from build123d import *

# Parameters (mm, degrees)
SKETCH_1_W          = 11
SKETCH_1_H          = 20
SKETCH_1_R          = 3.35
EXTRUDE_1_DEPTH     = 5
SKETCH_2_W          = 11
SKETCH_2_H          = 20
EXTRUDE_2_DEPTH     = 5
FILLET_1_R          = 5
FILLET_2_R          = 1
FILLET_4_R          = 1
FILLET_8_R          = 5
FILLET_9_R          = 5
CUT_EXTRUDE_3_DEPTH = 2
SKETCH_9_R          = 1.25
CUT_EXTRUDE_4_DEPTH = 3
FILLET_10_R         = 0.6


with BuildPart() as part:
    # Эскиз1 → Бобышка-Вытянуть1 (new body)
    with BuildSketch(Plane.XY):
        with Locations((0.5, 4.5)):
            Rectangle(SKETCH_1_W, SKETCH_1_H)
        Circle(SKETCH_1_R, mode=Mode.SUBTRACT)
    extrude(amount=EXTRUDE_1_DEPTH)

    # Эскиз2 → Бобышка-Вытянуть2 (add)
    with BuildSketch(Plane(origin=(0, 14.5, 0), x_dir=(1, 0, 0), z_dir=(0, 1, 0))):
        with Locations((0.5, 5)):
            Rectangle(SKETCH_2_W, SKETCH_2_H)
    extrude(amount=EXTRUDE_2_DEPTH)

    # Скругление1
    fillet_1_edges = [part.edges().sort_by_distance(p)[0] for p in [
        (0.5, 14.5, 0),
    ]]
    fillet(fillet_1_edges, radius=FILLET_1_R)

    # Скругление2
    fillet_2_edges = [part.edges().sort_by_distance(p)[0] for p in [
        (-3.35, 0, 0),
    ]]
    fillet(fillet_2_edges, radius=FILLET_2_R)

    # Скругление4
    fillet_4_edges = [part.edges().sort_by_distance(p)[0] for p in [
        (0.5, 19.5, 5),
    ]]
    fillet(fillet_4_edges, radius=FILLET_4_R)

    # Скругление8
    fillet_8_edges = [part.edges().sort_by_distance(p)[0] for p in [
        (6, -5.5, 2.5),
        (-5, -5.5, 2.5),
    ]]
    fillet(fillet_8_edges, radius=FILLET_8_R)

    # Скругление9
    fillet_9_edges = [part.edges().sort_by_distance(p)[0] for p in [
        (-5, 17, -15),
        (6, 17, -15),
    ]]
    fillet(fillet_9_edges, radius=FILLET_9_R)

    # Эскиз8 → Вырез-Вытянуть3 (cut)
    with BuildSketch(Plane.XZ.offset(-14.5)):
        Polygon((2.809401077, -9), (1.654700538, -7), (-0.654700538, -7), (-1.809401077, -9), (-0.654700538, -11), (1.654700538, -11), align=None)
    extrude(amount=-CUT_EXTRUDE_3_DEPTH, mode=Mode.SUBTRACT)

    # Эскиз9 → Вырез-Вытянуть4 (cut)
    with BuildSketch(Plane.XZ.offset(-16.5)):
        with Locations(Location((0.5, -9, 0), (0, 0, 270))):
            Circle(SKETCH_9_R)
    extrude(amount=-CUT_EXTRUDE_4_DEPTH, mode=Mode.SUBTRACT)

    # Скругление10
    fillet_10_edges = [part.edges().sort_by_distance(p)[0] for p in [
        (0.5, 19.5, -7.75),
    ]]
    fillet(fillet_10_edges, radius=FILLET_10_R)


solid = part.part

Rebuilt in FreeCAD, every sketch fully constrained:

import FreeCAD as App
import Part
import Sketcher
Q = App.Units.Quantity


def edges_at(feature, points):
    """Names of the edges that pass closest to the given points."""
    edges = feature.Shape.Edges
    near = lambda p: min(range(len(edges)), key=lambda i: edges[i].distToShape(Part.Vertex(*p))[0])
    return sorted({f"Edge{near(p) + 1}" for p in points})


def add_polygon(sketch, points):
    """Adds a closed chain of lines whose ends are joined by coincident constraints."""
    first, n = sketch.GeometryCount, len(points)
    for a, b in zip(points, points[1:] + points[:1]):
        sketch.addGeometry(Part.LineSegment(App.Vector(*a, 0), App.Vector(*b, 0)), False)
    for i in range(n):
        sketch.addConstraint(Sketcher.Constraint("Coincident", first + i, 2, first + (i + 1) % n, 1))

doc = App.newDocument("Part")
body = doc.addObject("PartDesign::Body", "Body")

# Sketch on XY plane
sketch1 = doc.addObject("Sketcher::SketchObject", "Sketch")
body.addObject(sketch1)
sketch1.AttachmentSupport = (doc.XY_Plane, [""])
sketch1.MapMode = "FlatFace"
add_polygon(sketch1, [(-5, 14.5), (-5, -5.5), (6, -5.5), (6, 14.5)])  # lines 0-3
sketch1.addGeometry(Part.Circle(App.Vector(0, 0, 0), App.Vector(0, 0, 1), 3.35), False)  # 4
sketch1.addConstraint([
    Sketcher.Constraint("Vertical", 0),
    Sketcher.Constraint("Horizontal", 1),
    Sketcher.Constraint("Vertical", 2),
    Sketcher.Constraint("Horizontal", 3),
    Sketcher.Constraint("Coincident", 4, 3, -1, 1),
    Sketcher.Constraint("Diameter", 4, 6.7),
    Sketcher.Constraint("DistanceX", 1, 1, 1, 2, 11.0),
    Sketcher.Constraint("DistanceY", 0, 2, 0, 1, 20.0),
    Sketcher.Constraint("DistanceX", 0, 2, -1, 1, 5.0),
    Sketcher.Constraint("DistanceY", 0, 2, -1, 1, 5.5),
])
pad1 = doc.addObject("PartDesign::Pad", "Pad")
body.addObject(pad1)
pad1.Profile = sketch1
pad1.Length = 5

# Sketch on XZ plane
sketch2 = doc.addObject("Sketcher::SketchObject", "Sketch001")
body.addObject(sketch2)
sketch2.AttachmentSupport = (doc.XZ_Plane, [""])
sketch2.MapMode = "FlatFace"
sketch2.AttachmentOffset = App.Placement(App.Vector(0, 0, -14.5), App.Rotation())
add_polygon(sketch2, [(-5, -15), (-5, 5), (6, 5), (6, -15)])  # lines 0-3
sketch2.addConstraint([
    Sketcher.Constraint("Vertical", 0),
    Sketcher.Constraint("Horizontal", 1),
    Sketcher.Constraint("Vertical", 2),
    Sketcher.Constraint("Horizontal", 3),
    Sketcher.Constraint("DistanceX", 1, 1, 1, 2, 11.0),
    Sketcher.Constraint("DistanceY", 0, 1, 0, 2, 20.0),
    Sketcher.Constraint("DistanceX", 0, 2, -1, 1, 5.0),
    Sketcher.Constraint("DistanceY", -1, 1, 0, 2, 5.0),
])
pad2 = doc.addObject("PartDesign::Pad", "Pad001")
body.addObject(pad2)
pad2.Profile = sketch2
pad2.Length = 5
pad2.Reversed = True
doc.recompute()

fillet = doc.addObject("PartDesign::Fillet", "Fillet")
body.addObject(fillet)
fillet.Base = (pad2, edges_at(pad2, [(0.5, 14.5, 0)]))
fillet.Radius = 5
doc.recompute()

fillet2 = doc.addObject("PartDesign::Fillet", "Fillet001")
body.addObject(fillet2)
fillet2.Base = (fillet, edges_at(fillet, [(-3.35, 0, 0)]))
fillet2.Radius = 1
doc.recompute()

fillet3 = doc.addObject("PartDesign::Fillet", "Fillet002")
body.addObject(fillet3)
fillet3.Base = (fillet2, edges_at(fillet2, [(0.5, 19.5, 5)]))
fillet3.Radius = 1
doc.recompute()

fillet4 = doc.addObject("PartDesign::Fillet", "Fillet003")
body.addObject(fillet4)
fillet4.Base = (fillet3, edges_at(fillet3, [(6, -5.5, 2.5), (-5, -5.5, 2.5)]))
fillet4.Radius = 5
doc.recompute()

fillet5 = doc.addObject("PartDesign::Fillet", "Fillet004")
body.addObject(fillet5)
fillet5.Base = (fillet4, edges_at(fillet4, [(-5, 17, -15), (6, 17, -15)]))
fillet5.Radius = 5

# Sketch on XZ plane
sketch3 = doc.addObject("Sketcher::SketchObject", "Sketch002")
body.addObject(sketch3)
sketch3.AttachmentSupport = (doc.XZ_Plane, [""])
sketch3.MapMode = "FlatFace"
sketch3.AttachmentOffset = App.Placement(App.Vector(0, 0, -14.5), App.Rotation())
add_polygon(sketch3, [(2.809401, -9), (1.654701, -7), (-0.654701, -7), (-1.809401, -9), (-0.654701, -11), (1.654701, -11)])  # lines 0-5
sketch3.addConstraint([
    Sketcher.Constraint("Horizontal", 1),
    Sketcher.Constraint("Horizontal", 4),
    Sketcher.Constraint("Parallel", 0, 3),
    Sketcher.Constraint("Parallel", 2, 5),
    Sketcher.Constraint("Horizontal", 2, 2, 5, 2),
    Sketcher.Constraint("Vertical", 1, 2, 3, 2),
    Sketcher.Constraint("Vertical", 0, 2, 4, 2),
    Sketcher.Constraint("Angle", 0, Q("120 deg")),
    Sketcher.Constraint("DistanceY", 0, 2, -1, 1, 7.0),
    Sketcher.Constraint("DistanceY", 2, 2, -1, 1, 9.0),
    Sketcher.Constraint("DistanceX", 1, 2, 1, 1, 2.309401),
    Sketcher.Constraint("DistanceX", -1, 1, 0, 2, 1.654701),
])
pocket1 = doc.addObject("PartDesign::Pocket", "Pocket")
body.addObject(pocket1)
pocket1.Profile = sketch3
pocket1.Length = 2

# Sketch on XZ plane
sketch4 = doc.addObject("Sketcher::SketchObject", "Sketch003")
body.addObject(sketch4)
sketch4.AttachmentSupport = (doc.XZ_Plane, [""])
sketch4.MapMode = "FlatFace"
sketch4.AttachmentOffset = App.Placement(App.Vector(0, 0, -16.5), App.Rotation())
sketch4.addGeometry(Part.Circle(App.Vector(0.5, -9, 0), App.Vector(0, 0, 1), 1.25), False)
sketch4.addConstraint([
    Sketcher.Constraint("Diameter", 0, 2.5),
    Sketcher.Constraint("DistanceY", 0, 3, -1, 1, 9.0),
    Sketcher.Constraint("DistanceX", -1, 1, 0, 3, 0.5),
])
pocket2 = doc.addObject("PartDesign::Pocket", "Pocket001")
body.addObject(pocket2)
pocket2.Profile = sketch4
pocket2.Length = 3
doc.recompute()

fillet6 = doc.addObject("PartDesign::Fillet", "Fillet005")
body.addObject(fillet6)
fillet6.Base = (pocket2, edges_at(pocket2, [(0.5, 19.5, -7.75)]))
fillet6.Radius = 0.6

doc.recompute()
